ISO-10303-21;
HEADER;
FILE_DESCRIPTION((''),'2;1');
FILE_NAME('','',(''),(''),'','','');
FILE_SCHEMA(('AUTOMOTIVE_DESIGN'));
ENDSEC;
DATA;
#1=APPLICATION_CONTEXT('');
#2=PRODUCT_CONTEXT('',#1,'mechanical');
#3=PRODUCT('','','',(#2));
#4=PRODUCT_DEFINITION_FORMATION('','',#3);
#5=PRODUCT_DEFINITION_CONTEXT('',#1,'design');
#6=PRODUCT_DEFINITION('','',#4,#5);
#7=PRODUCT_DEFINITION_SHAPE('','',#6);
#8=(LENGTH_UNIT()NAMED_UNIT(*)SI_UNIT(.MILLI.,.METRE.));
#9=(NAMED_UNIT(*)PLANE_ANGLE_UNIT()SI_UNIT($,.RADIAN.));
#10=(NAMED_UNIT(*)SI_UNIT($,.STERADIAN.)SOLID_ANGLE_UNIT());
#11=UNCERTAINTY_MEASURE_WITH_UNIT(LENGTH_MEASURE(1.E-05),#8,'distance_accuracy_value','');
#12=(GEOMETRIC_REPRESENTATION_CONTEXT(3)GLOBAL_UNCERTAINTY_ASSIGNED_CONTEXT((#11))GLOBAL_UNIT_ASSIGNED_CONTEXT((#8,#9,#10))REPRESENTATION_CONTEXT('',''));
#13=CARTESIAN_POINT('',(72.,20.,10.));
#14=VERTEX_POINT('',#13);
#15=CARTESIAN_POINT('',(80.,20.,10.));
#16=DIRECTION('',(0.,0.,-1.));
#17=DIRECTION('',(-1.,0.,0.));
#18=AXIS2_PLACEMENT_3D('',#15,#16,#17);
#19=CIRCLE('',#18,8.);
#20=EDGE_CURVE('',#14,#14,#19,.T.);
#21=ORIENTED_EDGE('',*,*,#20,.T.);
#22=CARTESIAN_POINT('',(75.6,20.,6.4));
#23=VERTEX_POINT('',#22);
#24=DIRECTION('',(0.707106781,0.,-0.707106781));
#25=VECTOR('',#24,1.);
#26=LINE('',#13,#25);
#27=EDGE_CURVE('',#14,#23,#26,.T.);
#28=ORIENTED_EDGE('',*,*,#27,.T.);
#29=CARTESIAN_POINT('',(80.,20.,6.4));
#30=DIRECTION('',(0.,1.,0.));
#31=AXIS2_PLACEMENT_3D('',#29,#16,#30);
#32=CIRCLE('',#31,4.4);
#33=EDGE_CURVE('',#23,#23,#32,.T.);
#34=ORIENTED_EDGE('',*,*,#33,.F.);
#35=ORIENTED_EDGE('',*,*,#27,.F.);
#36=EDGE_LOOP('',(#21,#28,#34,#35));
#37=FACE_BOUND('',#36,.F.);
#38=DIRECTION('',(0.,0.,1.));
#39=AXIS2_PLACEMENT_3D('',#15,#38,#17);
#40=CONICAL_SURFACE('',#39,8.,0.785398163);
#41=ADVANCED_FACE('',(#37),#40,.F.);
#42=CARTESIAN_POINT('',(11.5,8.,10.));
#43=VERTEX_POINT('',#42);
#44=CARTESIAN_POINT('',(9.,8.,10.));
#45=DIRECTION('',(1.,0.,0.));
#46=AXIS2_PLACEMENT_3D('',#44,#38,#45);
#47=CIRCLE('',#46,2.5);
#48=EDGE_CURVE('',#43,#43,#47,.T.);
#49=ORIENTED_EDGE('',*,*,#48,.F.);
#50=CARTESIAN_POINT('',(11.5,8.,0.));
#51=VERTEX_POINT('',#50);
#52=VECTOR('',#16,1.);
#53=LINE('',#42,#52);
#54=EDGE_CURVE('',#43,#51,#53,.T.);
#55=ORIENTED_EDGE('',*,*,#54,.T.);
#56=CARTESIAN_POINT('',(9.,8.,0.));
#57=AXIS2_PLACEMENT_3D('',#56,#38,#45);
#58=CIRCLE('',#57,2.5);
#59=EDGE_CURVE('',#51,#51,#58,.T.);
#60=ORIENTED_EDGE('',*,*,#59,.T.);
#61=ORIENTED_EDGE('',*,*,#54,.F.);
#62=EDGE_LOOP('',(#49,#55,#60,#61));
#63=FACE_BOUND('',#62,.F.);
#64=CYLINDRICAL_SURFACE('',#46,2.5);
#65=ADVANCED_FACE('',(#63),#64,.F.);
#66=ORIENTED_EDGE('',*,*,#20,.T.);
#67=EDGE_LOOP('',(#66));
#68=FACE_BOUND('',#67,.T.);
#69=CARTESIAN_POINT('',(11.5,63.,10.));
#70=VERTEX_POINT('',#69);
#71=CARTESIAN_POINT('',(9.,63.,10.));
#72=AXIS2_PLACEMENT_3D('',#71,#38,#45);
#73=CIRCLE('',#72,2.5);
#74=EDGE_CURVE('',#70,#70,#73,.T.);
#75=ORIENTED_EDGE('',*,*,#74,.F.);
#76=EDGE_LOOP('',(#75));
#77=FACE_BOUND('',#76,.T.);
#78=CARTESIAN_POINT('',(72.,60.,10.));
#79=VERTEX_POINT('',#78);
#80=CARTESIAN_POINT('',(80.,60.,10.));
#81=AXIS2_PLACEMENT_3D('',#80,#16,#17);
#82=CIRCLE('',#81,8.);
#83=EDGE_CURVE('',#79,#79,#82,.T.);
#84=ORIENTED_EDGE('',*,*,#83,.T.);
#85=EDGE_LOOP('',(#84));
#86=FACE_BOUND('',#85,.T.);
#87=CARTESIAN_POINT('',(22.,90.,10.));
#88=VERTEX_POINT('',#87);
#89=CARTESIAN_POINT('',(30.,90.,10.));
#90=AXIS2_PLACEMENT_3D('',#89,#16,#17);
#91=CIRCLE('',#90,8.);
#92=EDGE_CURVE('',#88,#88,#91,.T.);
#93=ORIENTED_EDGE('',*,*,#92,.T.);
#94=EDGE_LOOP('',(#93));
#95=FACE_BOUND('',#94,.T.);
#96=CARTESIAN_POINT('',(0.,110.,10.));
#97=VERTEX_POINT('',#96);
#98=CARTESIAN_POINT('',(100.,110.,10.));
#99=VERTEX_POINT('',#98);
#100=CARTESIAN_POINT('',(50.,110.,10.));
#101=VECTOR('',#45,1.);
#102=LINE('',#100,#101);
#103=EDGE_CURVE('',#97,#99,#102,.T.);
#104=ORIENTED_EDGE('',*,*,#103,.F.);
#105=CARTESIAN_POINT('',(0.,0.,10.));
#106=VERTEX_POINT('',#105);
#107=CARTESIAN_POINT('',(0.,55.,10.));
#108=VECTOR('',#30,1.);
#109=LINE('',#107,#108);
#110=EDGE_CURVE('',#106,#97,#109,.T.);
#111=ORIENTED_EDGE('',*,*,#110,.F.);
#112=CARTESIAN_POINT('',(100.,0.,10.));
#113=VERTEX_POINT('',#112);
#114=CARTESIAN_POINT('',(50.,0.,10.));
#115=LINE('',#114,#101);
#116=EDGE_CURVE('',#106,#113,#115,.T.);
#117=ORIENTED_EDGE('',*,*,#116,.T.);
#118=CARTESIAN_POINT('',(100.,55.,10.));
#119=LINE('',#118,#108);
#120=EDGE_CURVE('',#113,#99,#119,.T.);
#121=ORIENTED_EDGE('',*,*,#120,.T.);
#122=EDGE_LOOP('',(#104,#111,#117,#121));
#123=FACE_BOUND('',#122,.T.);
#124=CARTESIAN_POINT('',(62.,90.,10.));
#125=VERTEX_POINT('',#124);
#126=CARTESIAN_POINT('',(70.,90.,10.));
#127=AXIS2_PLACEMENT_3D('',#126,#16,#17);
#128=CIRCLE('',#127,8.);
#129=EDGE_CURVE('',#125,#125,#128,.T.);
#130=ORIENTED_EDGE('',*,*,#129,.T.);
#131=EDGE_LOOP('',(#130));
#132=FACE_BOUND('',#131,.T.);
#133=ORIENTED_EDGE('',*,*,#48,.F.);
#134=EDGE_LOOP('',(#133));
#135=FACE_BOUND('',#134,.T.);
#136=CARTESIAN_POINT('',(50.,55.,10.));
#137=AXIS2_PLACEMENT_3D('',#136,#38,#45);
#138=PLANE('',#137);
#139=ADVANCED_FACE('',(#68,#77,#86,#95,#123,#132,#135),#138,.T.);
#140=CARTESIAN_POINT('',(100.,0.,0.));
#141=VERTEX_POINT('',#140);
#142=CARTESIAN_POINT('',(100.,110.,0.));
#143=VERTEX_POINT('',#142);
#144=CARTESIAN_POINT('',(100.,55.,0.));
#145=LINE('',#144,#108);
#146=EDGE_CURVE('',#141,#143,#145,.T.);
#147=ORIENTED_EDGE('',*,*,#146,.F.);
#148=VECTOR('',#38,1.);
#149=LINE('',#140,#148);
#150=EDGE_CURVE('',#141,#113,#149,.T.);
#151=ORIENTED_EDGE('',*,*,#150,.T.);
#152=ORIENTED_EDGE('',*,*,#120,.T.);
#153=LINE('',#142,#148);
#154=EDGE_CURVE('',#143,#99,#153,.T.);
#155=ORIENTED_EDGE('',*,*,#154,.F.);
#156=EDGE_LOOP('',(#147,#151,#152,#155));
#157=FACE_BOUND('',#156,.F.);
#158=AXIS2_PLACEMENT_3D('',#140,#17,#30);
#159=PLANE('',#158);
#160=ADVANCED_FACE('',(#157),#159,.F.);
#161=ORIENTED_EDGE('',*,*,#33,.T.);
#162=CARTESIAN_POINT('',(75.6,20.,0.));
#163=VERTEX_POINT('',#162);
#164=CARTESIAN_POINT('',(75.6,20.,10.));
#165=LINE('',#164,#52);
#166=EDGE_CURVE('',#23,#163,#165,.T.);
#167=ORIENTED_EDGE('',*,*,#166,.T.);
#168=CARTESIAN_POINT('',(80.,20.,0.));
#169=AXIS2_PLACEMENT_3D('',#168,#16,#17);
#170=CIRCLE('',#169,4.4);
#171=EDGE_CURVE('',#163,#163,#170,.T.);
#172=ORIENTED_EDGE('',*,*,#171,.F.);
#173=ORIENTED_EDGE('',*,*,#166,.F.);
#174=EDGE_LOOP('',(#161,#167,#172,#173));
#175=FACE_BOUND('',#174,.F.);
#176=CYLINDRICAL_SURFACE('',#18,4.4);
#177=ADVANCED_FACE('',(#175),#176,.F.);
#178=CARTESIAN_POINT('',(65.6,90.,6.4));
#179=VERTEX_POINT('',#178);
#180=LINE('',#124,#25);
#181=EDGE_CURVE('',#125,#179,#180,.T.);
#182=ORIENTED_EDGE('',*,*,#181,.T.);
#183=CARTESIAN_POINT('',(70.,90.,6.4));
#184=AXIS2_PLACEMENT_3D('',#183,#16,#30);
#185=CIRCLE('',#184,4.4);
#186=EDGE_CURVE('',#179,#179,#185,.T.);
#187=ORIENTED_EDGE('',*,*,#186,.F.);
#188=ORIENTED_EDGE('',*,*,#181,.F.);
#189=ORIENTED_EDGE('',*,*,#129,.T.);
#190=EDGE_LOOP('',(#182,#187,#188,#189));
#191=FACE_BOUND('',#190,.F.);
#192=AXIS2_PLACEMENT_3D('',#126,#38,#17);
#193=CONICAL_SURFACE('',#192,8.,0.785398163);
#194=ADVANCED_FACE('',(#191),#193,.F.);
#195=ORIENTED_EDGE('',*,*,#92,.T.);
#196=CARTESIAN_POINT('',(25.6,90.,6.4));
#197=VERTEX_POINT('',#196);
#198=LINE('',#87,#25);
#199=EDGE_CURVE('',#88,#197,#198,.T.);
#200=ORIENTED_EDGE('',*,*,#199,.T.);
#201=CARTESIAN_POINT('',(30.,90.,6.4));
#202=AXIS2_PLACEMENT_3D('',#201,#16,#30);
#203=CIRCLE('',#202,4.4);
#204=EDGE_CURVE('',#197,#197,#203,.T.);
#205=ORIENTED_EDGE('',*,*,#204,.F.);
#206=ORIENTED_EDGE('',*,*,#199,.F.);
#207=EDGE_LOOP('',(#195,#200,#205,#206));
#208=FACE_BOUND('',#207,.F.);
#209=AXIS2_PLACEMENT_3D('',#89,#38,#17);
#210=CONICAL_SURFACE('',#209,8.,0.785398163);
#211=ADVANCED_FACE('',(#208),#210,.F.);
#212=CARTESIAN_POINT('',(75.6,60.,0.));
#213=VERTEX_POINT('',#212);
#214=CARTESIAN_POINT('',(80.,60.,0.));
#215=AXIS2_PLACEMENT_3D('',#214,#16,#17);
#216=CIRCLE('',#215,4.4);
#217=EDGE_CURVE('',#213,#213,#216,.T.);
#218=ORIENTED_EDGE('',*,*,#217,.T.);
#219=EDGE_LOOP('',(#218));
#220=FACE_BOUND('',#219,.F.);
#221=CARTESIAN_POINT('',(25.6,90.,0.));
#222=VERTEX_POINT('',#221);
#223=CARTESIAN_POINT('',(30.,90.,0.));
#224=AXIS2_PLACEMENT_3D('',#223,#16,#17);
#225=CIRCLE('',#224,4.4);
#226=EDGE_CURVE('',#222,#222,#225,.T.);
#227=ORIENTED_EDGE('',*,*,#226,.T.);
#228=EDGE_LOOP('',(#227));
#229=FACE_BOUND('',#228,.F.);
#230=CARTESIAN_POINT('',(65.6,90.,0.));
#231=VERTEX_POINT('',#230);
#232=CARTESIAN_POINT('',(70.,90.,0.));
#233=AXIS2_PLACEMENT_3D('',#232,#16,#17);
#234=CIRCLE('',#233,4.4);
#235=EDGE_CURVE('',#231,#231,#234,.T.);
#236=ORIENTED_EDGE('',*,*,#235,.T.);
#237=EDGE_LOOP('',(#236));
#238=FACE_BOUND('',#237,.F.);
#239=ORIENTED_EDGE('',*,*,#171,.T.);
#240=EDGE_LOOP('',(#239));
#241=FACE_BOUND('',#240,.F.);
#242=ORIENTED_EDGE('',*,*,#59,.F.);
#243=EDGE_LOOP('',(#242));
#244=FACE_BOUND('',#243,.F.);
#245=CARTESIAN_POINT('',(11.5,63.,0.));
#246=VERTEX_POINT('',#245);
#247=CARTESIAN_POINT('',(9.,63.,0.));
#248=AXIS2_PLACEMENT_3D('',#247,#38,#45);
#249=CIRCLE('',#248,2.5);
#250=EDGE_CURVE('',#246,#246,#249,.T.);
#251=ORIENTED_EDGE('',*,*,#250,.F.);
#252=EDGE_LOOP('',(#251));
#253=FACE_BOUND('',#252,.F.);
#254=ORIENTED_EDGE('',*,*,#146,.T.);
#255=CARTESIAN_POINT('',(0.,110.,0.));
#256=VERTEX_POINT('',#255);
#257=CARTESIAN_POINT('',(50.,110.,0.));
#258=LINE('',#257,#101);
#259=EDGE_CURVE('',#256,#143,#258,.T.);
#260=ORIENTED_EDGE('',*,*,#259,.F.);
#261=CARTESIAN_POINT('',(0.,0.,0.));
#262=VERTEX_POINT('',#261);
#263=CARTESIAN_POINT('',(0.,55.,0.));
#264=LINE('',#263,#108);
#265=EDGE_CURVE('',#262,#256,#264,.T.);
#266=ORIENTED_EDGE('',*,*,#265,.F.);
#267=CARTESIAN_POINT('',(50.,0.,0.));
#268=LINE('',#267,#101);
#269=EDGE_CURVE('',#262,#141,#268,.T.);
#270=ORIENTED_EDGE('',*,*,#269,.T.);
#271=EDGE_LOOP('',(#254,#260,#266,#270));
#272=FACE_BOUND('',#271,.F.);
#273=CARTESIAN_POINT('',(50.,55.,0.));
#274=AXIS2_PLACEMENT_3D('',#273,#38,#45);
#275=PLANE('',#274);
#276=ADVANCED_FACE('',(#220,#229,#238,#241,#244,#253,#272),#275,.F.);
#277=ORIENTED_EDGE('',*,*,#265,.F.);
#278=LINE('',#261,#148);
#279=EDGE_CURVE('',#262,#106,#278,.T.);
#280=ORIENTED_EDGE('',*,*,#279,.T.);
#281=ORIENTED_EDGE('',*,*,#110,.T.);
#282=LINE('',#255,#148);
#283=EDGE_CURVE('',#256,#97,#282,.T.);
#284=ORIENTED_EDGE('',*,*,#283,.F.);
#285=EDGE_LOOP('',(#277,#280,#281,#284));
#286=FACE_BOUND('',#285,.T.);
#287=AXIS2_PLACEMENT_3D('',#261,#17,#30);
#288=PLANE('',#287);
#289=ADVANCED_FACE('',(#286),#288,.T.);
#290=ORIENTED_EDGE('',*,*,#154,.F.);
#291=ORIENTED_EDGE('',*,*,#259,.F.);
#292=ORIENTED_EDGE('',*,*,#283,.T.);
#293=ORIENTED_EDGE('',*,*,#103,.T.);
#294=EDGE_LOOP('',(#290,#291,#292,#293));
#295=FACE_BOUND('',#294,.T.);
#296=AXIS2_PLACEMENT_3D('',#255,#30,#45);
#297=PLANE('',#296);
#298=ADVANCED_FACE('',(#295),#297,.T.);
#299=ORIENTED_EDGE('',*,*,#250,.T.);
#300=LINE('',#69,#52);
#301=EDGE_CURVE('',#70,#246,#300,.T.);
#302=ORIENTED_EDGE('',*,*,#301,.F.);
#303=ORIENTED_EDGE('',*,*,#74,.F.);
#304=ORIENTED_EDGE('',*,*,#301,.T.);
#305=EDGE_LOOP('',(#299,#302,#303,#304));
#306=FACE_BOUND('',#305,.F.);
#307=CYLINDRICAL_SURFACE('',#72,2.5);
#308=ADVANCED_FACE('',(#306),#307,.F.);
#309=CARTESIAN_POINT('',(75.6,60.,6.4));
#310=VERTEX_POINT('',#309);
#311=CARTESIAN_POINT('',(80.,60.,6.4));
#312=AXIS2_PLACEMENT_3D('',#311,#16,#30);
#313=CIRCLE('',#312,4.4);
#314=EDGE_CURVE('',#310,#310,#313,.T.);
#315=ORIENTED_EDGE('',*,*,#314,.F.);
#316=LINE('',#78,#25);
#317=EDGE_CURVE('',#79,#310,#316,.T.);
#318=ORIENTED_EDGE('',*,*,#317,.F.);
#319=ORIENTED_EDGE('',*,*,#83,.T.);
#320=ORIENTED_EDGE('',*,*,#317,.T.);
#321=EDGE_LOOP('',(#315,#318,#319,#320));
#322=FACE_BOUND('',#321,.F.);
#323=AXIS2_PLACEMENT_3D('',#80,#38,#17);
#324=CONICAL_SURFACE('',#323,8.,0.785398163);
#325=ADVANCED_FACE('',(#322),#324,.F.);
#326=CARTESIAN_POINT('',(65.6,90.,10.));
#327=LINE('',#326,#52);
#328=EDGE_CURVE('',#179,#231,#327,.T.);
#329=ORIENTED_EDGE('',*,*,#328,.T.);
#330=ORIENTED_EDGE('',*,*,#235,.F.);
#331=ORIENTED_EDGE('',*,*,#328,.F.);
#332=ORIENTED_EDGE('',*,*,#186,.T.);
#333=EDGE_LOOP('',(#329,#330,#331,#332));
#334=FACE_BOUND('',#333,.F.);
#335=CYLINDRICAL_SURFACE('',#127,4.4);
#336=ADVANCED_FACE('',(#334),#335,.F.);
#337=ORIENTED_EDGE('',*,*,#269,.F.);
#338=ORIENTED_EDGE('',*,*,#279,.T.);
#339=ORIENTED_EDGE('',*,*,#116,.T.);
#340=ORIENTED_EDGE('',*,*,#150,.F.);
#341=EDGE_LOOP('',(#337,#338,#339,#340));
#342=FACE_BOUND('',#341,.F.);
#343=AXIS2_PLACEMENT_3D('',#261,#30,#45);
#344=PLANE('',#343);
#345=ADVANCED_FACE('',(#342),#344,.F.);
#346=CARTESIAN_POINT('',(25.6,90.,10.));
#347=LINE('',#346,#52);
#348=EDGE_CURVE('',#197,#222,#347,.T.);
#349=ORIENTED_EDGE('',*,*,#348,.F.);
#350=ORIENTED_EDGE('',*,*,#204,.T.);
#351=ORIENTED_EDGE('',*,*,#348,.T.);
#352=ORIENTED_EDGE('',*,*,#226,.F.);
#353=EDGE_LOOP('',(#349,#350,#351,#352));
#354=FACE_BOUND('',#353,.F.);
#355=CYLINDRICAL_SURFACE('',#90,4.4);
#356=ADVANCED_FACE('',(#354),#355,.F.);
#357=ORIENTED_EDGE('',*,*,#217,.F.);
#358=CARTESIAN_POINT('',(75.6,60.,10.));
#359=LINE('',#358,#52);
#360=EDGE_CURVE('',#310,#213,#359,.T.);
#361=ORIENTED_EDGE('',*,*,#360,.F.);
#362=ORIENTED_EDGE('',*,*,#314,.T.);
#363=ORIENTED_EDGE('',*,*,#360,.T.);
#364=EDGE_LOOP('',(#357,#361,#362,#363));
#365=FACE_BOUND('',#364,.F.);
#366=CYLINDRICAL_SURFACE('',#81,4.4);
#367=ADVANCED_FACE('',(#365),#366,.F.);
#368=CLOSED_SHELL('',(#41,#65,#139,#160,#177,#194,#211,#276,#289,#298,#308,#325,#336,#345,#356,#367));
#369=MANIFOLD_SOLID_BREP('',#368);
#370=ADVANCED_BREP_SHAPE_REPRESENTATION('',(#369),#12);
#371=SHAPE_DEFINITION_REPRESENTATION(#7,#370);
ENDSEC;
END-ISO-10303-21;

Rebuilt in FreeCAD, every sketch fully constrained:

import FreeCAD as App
import Part
import Sketcher
from FreeCAD import Vector

doc = App.newDocument("Part")
body = doc.addObject("PartDesign::Body", "Body")

sketch1 = doc.addObject("Sketcher::SketchObject", "Sketch")
body.addObject(sketch1)
sketch1.AttachmentSupport = (doc.XY_Plane, [""])
sketch1.MapMode = "FlatFace"
sketch1.addGeometry([
    Part.LineSegment(Vector(0, 110, 0), Vector(0, 0, 0)),
    Part.LineSegment(Vector(0, 0, 0), Vector(100, 0, 0)),
    Part.LineSegment(Vector(100, 0, 0), Vector(100, 110, 0)),
    Part.LineSegment(Vector(100, 110, 0), Vector(0, 110, 0)),
], False)
sketch1.addConstraint([
    Sketcher.Constraint("Coincident", 0, 2, 1, 1),
    Sketcher.Constraint("Coincident", 1, 2, 2, 1),
    Sketcher.Constraint("Coincident", 2, 2, 3, 1),
    Sketcher.Constraint("Coincident", 3, 2, 0, 1),
    Sketcher.Constraint("Vertical", 0),
    Sketcher.Constraint("Horizontal", 1),
    Sketcher.Constraint("Vertical", 2),
    Sketcher.Constraint("Horizontal", 3),
    Sketcher.Constraint("Coincident", 0, 2, -1, 1),
    Sketcher.Constraint("DistanceX", 1, 1, 1, 2, 100.0),
    Sketcher.Constraint("DistanceY", 0, 2, 0, 1, 110.0),
])
pad1 = doc.addObject("PartDesign::Pad", "Pad")
body.addObject(pad1)
pad1.Profile = sketch1
pad1.Length = 10

sketch2 = doc.addObject("Sketcher::SketchObject", "Sketch001")
body.addObject(sketch2)
sketch2.AttachmentSupport = (doc.XY_Plane, [""])
sketch2.MapMode = "FlatFace"
sketch2.AttachmentOffset = App.Placement(Vector(0, 0, 10), App.Rotation())
sketch2.addGeometry(Part.Circle(Vector(9, 8, 0), Vector(0, 0, 1), 2.5), False)
sketch2.addConstraint([
    Sketcher.Constraint("Diameter", 0, 5.0),
    Sketcher.Constraint("DistanceX", -1, 1, 0, 3, 9.0),
    Sketcher.Constraint("DistanceY", -1, 1, 0, 3, 8.0),
])
pocket1 = doc.addObject("PartDesign::Pocket", "Pocket")
body.addObject(pocket1)
pocket1.Profile = sketch2
pocket1.Type = "ThroughAll"
doc.recompute()

linearpattern = doc.addObject("PartDesign::LinearPattern", "LinearPattern")
body.addObject(linearpattern)
linearpattern.Originals = [pocket1]
linearpattern.Direction = (doc.Y_Axis, [""])
linearpattern.Mode = "offset"
linearpattern.Offset = 55
linearpattern.Occurrences = 2
body.Tip = linearpattern

sketch3 = doc.addObject("Sketcher::SketchObject", "Sketch002")
body.addObject(sketch3)
sketch3.AttachmentSupport = (doc.XY_Plane, [""])
sketch3.MapMode = "FlatFace"
sketch3.AttachmentOffset = App.Placement(Vector(0, 0, 10), App.Rotation())
sketch3.addGeometry(Part.Circle(Vector(80, 20, 0), Vector(0, 0, 1), 4.4), False)
sketch3.addConstraint([
    Sketcher.Constraint("Diameter", 0, 8.8),
    Sketcher.Constraint("DistanceX", -1, 1, 0, 3, 80.0),
    Sketcher.Constraint("DistanceY", -1, 1, 0, 3, 20.0),
])
doc.recompute()
hole = doc.addObject("PartDesign::Hole", "Hole")
body.addObject(hole)
hole.Profile = sketch3
hole.ThreadType = "None"
hole.Diameter = 8.8
hole.DepthType = "ThroughAll"
hole.HoleCutType = "Countersink"
hole.HoleCutDiameter = 16
hole.HoleCutCountersinkAngle = 90
doc.recompute()

linearpattern2 = doc.addObject("PartDesign::LinearPattern", "LinearPattern001")
body.addObject(linearpattern2)
linearpattern2.Originals = [hole]
linearpattern2.Direction = (doc.Y_Axis, [""])
linearpattern2.Mode = "offset"
linearpattern2.Offset = 40
linearpattern2.Occurrences = 2
body.Tip = linearpattern2

sketch4 = doc.addObject("Sketcher::SketchObject", "Sketch003")
body.addObject(sketch4)
sketch4.AttachmentSupport = (doc.XY_Plane, [""])
sketch4.MapMode = "FlatFace"
sketch4.AttachmentOffset = App.Placement(Vector(0, 0, 10), App.Rotation())
sketch4.addGeometry(Part.Circle(Vector(30, 90, 0), Vector(0, 0, 1), 4.4), False)
sketch4.addConstraint([
    Sketcher.Constraint("Diameter", 0, 8.8),
    Sketcher.Constraint("DistanceX", -1, 1, 0, 3, 30.0),
    Sketcher.Constraint("DistanceY", -1, 1, 0, 3, 90.0),
])
doc.recompute()
hole2 = doc.addObject("PartDesign::Hole", "Hole001")
body.addObject(hole2)
hole2.Profile = sketch4
hole2.ThreadType = "None"
hole2.Diameter = 8.8
hole2.DepthType = "ThroughAll"
hole2.HoleCutType = "Countersink"
hole2.HoleCutDiameter = 16
hole2.HoleCutCountersinkAngle = 90
doc.recompute()

linearpattern3 = doc.addObject("PartDesign::LinearPattern", "LinearPattern002")
body.addObject(linearpattern3)
linearpattern3.Originals = [hole2]
linearpattern3.Direction = (doc.X_Axis, [""])
linearpattern3.Mode = "offset"
linearpattern3.Offset = 40
linearpattern3.Occurrences = 2
body.Tip = linearpattern3

doc.recompute()
